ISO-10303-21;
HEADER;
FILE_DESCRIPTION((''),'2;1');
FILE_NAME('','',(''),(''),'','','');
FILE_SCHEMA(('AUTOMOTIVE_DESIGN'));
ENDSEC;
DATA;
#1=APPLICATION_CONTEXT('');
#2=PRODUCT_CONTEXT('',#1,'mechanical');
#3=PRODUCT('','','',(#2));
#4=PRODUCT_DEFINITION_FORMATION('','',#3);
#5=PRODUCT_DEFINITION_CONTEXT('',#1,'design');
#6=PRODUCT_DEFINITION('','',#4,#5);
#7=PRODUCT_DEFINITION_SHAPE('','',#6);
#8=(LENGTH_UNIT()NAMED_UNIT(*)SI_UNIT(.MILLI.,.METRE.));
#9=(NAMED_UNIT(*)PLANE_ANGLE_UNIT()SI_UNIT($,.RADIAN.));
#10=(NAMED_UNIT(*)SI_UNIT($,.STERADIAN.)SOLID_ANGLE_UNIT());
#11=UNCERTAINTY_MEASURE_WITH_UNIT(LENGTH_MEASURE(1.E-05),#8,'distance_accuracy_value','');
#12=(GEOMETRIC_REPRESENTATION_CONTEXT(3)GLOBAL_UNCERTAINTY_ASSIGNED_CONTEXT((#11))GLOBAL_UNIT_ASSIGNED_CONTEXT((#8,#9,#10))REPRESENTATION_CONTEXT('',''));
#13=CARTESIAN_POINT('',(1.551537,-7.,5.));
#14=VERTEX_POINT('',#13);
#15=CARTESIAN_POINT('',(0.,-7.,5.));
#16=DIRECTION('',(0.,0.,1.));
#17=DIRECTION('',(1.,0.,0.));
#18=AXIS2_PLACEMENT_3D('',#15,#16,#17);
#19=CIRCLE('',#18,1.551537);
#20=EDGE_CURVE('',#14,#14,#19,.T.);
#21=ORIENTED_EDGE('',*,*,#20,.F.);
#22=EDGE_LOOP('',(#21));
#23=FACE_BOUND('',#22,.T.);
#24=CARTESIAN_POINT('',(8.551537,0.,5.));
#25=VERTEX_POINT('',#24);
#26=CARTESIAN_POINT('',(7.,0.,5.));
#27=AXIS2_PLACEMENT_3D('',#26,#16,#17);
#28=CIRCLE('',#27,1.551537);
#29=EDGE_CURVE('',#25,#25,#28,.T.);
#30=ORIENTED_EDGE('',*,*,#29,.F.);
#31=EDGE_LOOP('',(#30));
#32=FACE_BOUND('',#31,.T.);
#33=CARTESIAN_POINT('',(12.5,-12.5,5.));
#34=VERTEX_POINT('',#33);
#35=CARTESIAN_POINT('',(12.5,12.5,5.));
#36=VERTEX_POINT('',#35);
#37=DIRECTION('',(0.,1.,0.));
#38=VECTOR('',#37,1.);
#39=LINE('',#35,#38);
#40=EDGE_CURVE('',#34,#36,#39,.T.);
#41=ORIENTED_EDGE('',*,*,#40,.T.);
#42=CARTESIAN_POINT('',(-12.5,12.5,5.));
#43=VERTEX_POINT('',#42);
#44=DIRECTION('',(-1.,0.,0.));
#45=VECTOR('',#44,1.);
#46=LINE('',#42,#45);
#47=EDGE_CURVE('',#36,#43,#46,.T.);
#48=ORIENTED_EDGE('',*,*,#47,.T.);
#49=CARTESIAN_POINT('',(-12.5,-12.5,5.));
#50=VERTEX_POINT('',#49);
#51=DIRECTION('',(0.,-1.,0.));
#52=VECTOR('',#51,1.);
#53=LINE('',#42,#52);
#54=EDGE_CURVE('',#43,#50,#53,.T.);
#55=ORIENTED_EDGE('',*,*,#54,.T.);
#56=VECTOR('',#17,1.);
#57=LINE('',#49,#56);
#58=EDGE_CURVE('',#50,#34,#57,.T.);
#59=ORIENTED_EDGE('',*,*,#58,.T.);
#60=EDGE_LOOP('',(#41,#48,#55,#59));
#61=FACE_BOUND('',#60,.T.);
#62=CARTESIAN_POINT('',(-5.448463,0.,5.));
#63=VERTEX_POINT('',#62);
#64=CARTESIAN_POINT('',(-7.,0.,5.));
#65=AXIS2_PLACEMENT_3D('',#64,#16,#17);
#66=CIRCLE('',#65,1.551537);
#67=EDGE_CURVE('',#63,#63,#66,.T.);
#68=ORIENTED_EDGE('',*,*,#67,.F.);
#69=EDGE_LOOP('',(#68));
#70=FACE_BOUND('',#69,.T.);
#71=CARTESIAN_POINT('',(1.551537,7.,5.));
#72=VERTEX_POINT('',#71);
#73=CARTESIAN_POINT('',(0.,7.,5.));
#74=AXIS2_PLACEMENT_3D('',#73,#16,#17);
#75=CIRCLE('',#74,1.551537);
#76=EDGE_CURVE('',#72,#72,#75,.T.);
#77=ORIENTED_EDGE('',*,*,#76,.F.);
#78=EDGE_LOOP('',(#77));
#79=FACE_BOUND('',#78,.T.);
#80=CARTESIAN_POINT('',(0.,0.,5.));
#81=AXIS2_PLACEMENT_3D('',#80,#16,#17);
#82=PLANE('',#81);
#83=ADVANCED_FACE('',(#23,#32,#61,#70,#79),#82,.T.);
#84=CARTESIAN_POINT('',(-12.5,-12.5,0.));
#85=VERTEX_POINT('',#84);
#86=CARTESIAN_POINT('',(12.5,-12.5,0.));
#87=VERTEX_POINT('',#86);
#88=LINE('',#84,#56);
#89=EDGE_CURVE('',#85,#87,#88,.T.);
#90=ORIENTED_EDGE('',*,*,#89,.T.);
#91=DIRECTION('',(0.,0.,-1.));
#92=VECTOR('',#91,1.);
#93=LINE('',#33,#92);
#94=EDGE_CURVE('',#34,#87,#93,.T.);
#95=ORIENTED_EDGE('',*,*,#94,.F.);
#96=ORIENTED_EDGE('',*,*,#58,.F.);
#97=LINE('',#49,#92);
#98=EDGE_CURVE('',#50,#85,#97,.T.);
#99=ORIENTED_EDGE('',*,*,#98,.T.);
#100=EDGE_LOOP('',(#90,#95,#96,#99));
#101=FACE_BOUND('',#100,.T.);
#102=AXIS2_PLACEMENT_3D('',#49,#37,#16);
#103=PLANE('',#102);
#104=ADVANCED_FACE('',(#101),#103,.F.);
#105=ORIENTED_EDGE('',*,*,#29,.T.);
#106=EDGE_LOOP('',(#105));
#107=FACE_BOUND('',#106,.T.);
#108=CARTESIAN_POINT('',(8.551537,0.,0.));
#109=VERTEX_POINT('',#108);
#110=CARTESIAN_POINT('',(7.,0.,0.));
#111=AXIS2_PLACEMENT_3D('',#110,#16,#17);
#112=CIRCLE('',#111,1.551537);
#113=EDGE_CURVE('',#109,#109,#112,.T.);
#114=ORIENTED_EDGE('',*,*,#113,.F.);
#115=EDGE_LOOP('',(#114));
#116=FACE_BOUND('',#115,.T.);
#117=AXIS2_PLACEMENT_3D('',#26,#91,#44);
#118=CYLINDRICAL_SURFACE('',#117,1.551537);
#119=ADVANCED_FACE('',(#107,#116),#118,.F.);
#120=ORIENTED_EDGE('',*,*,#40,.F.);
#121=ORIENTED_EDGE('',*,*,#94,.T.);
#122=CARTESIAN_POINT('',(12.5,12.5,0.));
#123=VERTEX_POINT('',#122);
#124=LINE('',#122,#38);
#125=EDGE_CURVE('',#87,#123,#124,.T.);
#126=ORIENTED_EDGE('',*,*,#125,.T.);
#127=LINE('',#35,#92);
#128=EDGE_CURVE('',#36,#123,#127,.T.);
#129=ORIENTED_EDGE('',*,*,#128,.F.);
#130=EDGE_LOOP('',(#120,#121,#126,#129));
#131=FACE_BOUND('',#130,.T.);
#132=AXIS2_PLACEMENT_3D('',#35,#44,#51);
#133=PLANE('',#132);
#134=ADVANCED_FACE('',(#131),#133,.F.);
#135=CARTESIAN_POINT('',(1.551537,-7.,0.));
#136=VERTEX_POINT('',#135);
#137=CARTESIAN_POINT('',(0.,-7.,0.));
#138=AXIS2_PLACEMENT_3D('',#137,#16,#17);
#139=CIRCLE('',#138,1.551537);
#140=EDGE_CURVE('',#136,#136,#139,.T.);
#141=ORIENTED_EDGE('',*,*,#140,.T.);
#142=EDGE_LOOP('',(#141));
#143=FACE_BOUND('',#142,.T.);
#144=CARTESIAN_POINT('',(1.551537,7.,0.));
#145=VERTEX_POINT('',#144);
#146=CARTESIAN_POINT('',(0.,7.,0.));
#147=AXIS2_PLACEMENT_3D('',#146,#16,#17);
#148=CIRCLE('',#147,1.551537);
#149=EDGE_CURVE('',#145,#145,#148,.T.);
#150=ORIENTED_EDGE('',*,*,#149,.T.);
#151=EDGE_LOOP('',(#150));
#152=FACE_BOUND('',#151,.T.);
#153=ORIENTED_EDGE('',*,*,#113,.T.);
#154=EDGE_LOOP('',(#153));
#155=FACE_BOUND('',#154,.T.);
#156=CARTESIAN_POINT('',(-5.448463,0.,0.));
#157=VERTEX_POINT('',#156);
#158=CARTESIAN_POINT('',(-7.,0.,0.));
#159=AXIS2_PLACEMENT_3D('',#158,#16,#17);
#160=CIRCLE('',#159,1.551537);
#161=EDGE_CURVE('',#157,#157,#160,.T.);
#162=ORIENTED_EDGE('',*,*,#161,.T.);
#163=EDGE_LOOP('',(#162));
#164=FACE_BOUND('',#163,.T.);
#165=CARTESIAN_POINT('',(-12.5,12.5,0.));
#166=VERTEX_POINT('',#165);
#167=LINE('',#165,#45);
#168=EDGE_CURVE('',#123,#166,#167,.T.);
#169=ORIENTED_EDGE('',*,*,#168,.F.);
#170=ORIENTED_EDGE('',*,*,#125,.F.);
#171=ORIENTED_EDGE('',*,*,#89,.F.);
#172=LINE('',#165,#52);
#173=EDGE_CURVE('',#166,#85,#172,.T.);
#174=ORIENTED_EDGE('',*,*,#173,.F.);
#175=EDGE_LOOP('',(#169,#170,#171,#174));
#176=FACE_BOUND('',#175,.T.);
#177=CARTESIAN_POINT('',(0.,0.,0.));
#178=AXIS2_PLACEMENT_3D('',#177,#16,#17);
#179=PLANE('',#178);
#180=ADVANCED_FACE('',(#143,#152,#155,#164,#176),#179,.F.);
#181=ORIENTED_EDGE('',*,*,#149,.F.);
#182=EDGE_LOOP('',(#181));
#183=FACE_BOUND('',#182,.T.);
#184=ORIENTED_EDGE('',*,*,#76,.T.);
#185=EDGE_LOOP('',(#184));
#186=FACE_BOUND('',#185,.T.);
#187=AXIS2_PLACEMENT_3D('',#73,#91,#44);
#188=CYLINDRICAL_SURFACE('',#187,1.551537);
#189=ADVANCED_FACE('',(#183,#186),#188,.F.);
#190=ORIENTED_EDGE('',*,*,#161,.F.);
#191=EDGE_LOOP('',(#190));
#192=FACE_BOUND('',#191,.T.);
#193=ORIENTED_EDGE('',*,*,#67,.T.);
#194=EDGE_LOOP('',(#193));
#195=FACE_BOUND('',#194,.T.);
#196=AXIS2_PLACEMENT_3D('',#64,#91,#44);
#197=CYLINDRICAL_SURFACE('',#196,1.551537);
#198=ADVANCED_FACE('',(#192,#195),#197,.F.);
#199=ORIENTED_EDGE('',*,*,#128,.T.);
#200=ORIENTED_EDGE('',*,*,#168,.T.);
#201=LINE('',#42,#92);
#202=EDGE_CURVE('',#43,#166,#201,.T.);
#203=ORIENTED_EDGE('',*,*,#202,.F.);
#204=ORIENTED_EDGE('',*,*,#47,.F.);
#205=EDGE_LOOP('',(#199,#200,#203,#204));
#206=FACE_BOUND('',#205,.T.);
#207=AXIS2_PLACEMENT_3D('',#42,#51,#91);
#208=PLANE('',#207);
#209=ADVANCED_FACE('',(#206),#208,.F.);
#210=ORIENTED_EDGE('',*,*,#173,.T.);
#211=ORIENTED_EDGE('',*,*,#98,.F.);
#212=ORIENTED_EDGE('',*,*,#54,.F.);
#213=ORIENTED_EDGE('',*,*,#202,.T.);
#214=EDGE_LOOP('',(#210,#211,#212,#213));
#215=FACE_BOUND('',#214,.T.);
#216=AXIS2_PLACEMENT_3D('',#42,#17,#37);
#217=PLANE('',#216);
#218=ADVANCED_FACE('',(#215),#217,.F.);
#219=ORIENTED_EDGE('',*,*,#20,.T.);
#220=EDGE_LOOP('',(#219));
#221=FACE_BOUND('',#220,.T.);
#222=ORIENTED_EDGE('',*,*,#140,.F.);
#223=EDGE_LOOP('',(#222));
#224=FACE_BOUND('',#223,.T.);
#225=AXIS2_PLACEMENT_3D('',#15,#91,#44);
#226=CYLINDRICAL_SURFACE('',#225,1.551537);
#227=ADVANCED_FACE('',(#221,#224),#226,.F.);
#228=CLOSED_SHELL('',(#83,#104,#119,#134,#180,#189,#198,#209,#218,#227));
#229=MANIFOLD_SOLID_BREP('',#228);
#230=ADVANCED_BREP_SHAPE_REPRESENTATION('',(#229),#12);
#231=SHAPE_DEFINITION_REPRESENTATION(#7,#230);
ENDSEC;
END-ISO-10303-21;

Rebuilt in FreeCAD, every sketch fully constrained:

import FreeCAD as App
import Part
import Sketcher


def add_polygon(sketch, points):
    """Adds a closed chain of lines whose ends are joined by coincident constraints."""
    first, n = sketch.GeometryCount, len(points)
    for a, b in zip(points, points[1:] + points[:1]):
        sketch.addGeometry(Part.LineSegment(App.Vector(*a, 0), App.Vector(*b, 0)), False)
    for i in range(n):
        sketch.addConstraint(Sketcher.Constraint("Coincident", first + i, 2, first + (i + 1) % n, 1))

doc = App.newDocument("Part")
body = doc.addObject("PartDesign::Body", "Body")

# Sketch on XY plane
sketch1 = body.newObject("Sketcher::SketchObject", "Sketch")
sketch1.AttachmentSupport = (doc.getObject("XY_Plane"), [""])
sketch1.MapMode = "FlatFace"
add_polygon(sketch1, [(-12.5, 12.5), (-12.5, -12.5), (12.5, -12.5), (12.5, 12.5)])  # lines 0-3
sketch1.addGeometry(Part.Circle(App.Vector(0, -7, 0), App.Vector(0, 0, 1), 1.6), False)  # 4
sketch1.addGeometry(Part.Circle(App.Vector(-7, 0, 0), App.Vector(0, 0, 1), 1.6), False)  # 5
sketch1.addGeometry(Part.Circle(App.Vector(0, 0, 0), App.Vector(0, 0, 1), 1.5), False)  # 6
sketch1.addGeometry(Part.Circle(App.Vector(7, 0, 0), App.Vector(0, 0, 1), 1.6), False)  # 7
sketch1.addGeometry(Part.Circle(App.Vector(0, 7, 0), App.Vector(0, 0, 1), 1.6), False)  # 8
sketch1.addConstraint(Sketcher.Constraint("Vertical", 0))
sketch1.addConstraint(Sketcher.Constraint("Horizontal", 1))
sketch1.addConstraint(Sketcher.Constraint("Vertical", 2))
sketch1.addConstraint(Sketcher.Constraint("Horizontal", 3))
sketch1.addConstraint(Sketcher.Constraint("Coincident", 6, 3, -1, 1))
sketch1.addConstraint(Sketcher.Constraint("Equal", 4, 5))
sketch1.addConstraint(Sketcher.Constraint("Equal", 5, 7))
sketch1.addConstraint(Sketcher.Constraint("Equal", 7, 8))
sketch1.addConstraint(Sketcher.Constraint("Symmetric", 5, 3, 7, 3, -1, 1))
sketch1.addConstraint(Sketcher.Constraint("Symmetric", 4, 3, 8, 3, -1, 1))
sketch1.addConstraint(Sketcher.Constraint("Symmetric", 0, 2, 2, 2, -1, 1))
sketch1.addConstraint(Sketcher.Constraint("PointOnObject", 4, 3, -2))
sketch1.addConstraint(Sketcher.Constraint("PointOnObject", 5, 3, -1))
sketch1.addConstraint(Sketcher.Constraint("Equal", 3, 0))
sketch1.addConstraint(Sketcher.Constraint("Diameter", 6, 3.0))
sketch1.addConstraint(Sketcher.Constraint("DistanceX", 1, 1, 1, 2, 25.0))
sketch1.addConstraint(Sketcher.Constraint("DistanceY", 4, 3, -1, 1, 7.0))
sketch1.addConstraint(Sketcher.Constraint("DistanceX", 5, 3, -1, 1, 7.0))
sketch1.addConstraint(Sketcher.Constraint("Diameter", 4, 3.103074))
pad1 = body.newObject("PartDesign::Pad", "Pad")
pad1.Profile = sketch1
pad1.Length = 5

# Sketch on XY plane
sketch2 = body.newObject("Sketcher::SketchObject", "Sketch001")
sketch2.AttachmentSupport = (doc.getObject("XY_Plane"), [""])
sketch2.MapMode = "FlatFace"
sketch2.AttachmentOffset = App.Placement(App.Vector(0, 0, 5), App.Rotation())
sketch2.addGeometry(Part.Circle(App.Vector(0, 0, 0), App.Vector(0, 0, 1), 1.6), False)
sketch2.addConstraint(Sketcher.Constraint("Coincident", 0, 3, -1, 1))
sketch2.addConstraint(Sketcher.Constraint("Diameter", 0, 3.1))
pad2 = body.newObject("PartDesign::Pad", "Pad001")
pad2.Profile = sketch2
pad2.Length = 5
pad2.Reversed = True

doc.recompute()
